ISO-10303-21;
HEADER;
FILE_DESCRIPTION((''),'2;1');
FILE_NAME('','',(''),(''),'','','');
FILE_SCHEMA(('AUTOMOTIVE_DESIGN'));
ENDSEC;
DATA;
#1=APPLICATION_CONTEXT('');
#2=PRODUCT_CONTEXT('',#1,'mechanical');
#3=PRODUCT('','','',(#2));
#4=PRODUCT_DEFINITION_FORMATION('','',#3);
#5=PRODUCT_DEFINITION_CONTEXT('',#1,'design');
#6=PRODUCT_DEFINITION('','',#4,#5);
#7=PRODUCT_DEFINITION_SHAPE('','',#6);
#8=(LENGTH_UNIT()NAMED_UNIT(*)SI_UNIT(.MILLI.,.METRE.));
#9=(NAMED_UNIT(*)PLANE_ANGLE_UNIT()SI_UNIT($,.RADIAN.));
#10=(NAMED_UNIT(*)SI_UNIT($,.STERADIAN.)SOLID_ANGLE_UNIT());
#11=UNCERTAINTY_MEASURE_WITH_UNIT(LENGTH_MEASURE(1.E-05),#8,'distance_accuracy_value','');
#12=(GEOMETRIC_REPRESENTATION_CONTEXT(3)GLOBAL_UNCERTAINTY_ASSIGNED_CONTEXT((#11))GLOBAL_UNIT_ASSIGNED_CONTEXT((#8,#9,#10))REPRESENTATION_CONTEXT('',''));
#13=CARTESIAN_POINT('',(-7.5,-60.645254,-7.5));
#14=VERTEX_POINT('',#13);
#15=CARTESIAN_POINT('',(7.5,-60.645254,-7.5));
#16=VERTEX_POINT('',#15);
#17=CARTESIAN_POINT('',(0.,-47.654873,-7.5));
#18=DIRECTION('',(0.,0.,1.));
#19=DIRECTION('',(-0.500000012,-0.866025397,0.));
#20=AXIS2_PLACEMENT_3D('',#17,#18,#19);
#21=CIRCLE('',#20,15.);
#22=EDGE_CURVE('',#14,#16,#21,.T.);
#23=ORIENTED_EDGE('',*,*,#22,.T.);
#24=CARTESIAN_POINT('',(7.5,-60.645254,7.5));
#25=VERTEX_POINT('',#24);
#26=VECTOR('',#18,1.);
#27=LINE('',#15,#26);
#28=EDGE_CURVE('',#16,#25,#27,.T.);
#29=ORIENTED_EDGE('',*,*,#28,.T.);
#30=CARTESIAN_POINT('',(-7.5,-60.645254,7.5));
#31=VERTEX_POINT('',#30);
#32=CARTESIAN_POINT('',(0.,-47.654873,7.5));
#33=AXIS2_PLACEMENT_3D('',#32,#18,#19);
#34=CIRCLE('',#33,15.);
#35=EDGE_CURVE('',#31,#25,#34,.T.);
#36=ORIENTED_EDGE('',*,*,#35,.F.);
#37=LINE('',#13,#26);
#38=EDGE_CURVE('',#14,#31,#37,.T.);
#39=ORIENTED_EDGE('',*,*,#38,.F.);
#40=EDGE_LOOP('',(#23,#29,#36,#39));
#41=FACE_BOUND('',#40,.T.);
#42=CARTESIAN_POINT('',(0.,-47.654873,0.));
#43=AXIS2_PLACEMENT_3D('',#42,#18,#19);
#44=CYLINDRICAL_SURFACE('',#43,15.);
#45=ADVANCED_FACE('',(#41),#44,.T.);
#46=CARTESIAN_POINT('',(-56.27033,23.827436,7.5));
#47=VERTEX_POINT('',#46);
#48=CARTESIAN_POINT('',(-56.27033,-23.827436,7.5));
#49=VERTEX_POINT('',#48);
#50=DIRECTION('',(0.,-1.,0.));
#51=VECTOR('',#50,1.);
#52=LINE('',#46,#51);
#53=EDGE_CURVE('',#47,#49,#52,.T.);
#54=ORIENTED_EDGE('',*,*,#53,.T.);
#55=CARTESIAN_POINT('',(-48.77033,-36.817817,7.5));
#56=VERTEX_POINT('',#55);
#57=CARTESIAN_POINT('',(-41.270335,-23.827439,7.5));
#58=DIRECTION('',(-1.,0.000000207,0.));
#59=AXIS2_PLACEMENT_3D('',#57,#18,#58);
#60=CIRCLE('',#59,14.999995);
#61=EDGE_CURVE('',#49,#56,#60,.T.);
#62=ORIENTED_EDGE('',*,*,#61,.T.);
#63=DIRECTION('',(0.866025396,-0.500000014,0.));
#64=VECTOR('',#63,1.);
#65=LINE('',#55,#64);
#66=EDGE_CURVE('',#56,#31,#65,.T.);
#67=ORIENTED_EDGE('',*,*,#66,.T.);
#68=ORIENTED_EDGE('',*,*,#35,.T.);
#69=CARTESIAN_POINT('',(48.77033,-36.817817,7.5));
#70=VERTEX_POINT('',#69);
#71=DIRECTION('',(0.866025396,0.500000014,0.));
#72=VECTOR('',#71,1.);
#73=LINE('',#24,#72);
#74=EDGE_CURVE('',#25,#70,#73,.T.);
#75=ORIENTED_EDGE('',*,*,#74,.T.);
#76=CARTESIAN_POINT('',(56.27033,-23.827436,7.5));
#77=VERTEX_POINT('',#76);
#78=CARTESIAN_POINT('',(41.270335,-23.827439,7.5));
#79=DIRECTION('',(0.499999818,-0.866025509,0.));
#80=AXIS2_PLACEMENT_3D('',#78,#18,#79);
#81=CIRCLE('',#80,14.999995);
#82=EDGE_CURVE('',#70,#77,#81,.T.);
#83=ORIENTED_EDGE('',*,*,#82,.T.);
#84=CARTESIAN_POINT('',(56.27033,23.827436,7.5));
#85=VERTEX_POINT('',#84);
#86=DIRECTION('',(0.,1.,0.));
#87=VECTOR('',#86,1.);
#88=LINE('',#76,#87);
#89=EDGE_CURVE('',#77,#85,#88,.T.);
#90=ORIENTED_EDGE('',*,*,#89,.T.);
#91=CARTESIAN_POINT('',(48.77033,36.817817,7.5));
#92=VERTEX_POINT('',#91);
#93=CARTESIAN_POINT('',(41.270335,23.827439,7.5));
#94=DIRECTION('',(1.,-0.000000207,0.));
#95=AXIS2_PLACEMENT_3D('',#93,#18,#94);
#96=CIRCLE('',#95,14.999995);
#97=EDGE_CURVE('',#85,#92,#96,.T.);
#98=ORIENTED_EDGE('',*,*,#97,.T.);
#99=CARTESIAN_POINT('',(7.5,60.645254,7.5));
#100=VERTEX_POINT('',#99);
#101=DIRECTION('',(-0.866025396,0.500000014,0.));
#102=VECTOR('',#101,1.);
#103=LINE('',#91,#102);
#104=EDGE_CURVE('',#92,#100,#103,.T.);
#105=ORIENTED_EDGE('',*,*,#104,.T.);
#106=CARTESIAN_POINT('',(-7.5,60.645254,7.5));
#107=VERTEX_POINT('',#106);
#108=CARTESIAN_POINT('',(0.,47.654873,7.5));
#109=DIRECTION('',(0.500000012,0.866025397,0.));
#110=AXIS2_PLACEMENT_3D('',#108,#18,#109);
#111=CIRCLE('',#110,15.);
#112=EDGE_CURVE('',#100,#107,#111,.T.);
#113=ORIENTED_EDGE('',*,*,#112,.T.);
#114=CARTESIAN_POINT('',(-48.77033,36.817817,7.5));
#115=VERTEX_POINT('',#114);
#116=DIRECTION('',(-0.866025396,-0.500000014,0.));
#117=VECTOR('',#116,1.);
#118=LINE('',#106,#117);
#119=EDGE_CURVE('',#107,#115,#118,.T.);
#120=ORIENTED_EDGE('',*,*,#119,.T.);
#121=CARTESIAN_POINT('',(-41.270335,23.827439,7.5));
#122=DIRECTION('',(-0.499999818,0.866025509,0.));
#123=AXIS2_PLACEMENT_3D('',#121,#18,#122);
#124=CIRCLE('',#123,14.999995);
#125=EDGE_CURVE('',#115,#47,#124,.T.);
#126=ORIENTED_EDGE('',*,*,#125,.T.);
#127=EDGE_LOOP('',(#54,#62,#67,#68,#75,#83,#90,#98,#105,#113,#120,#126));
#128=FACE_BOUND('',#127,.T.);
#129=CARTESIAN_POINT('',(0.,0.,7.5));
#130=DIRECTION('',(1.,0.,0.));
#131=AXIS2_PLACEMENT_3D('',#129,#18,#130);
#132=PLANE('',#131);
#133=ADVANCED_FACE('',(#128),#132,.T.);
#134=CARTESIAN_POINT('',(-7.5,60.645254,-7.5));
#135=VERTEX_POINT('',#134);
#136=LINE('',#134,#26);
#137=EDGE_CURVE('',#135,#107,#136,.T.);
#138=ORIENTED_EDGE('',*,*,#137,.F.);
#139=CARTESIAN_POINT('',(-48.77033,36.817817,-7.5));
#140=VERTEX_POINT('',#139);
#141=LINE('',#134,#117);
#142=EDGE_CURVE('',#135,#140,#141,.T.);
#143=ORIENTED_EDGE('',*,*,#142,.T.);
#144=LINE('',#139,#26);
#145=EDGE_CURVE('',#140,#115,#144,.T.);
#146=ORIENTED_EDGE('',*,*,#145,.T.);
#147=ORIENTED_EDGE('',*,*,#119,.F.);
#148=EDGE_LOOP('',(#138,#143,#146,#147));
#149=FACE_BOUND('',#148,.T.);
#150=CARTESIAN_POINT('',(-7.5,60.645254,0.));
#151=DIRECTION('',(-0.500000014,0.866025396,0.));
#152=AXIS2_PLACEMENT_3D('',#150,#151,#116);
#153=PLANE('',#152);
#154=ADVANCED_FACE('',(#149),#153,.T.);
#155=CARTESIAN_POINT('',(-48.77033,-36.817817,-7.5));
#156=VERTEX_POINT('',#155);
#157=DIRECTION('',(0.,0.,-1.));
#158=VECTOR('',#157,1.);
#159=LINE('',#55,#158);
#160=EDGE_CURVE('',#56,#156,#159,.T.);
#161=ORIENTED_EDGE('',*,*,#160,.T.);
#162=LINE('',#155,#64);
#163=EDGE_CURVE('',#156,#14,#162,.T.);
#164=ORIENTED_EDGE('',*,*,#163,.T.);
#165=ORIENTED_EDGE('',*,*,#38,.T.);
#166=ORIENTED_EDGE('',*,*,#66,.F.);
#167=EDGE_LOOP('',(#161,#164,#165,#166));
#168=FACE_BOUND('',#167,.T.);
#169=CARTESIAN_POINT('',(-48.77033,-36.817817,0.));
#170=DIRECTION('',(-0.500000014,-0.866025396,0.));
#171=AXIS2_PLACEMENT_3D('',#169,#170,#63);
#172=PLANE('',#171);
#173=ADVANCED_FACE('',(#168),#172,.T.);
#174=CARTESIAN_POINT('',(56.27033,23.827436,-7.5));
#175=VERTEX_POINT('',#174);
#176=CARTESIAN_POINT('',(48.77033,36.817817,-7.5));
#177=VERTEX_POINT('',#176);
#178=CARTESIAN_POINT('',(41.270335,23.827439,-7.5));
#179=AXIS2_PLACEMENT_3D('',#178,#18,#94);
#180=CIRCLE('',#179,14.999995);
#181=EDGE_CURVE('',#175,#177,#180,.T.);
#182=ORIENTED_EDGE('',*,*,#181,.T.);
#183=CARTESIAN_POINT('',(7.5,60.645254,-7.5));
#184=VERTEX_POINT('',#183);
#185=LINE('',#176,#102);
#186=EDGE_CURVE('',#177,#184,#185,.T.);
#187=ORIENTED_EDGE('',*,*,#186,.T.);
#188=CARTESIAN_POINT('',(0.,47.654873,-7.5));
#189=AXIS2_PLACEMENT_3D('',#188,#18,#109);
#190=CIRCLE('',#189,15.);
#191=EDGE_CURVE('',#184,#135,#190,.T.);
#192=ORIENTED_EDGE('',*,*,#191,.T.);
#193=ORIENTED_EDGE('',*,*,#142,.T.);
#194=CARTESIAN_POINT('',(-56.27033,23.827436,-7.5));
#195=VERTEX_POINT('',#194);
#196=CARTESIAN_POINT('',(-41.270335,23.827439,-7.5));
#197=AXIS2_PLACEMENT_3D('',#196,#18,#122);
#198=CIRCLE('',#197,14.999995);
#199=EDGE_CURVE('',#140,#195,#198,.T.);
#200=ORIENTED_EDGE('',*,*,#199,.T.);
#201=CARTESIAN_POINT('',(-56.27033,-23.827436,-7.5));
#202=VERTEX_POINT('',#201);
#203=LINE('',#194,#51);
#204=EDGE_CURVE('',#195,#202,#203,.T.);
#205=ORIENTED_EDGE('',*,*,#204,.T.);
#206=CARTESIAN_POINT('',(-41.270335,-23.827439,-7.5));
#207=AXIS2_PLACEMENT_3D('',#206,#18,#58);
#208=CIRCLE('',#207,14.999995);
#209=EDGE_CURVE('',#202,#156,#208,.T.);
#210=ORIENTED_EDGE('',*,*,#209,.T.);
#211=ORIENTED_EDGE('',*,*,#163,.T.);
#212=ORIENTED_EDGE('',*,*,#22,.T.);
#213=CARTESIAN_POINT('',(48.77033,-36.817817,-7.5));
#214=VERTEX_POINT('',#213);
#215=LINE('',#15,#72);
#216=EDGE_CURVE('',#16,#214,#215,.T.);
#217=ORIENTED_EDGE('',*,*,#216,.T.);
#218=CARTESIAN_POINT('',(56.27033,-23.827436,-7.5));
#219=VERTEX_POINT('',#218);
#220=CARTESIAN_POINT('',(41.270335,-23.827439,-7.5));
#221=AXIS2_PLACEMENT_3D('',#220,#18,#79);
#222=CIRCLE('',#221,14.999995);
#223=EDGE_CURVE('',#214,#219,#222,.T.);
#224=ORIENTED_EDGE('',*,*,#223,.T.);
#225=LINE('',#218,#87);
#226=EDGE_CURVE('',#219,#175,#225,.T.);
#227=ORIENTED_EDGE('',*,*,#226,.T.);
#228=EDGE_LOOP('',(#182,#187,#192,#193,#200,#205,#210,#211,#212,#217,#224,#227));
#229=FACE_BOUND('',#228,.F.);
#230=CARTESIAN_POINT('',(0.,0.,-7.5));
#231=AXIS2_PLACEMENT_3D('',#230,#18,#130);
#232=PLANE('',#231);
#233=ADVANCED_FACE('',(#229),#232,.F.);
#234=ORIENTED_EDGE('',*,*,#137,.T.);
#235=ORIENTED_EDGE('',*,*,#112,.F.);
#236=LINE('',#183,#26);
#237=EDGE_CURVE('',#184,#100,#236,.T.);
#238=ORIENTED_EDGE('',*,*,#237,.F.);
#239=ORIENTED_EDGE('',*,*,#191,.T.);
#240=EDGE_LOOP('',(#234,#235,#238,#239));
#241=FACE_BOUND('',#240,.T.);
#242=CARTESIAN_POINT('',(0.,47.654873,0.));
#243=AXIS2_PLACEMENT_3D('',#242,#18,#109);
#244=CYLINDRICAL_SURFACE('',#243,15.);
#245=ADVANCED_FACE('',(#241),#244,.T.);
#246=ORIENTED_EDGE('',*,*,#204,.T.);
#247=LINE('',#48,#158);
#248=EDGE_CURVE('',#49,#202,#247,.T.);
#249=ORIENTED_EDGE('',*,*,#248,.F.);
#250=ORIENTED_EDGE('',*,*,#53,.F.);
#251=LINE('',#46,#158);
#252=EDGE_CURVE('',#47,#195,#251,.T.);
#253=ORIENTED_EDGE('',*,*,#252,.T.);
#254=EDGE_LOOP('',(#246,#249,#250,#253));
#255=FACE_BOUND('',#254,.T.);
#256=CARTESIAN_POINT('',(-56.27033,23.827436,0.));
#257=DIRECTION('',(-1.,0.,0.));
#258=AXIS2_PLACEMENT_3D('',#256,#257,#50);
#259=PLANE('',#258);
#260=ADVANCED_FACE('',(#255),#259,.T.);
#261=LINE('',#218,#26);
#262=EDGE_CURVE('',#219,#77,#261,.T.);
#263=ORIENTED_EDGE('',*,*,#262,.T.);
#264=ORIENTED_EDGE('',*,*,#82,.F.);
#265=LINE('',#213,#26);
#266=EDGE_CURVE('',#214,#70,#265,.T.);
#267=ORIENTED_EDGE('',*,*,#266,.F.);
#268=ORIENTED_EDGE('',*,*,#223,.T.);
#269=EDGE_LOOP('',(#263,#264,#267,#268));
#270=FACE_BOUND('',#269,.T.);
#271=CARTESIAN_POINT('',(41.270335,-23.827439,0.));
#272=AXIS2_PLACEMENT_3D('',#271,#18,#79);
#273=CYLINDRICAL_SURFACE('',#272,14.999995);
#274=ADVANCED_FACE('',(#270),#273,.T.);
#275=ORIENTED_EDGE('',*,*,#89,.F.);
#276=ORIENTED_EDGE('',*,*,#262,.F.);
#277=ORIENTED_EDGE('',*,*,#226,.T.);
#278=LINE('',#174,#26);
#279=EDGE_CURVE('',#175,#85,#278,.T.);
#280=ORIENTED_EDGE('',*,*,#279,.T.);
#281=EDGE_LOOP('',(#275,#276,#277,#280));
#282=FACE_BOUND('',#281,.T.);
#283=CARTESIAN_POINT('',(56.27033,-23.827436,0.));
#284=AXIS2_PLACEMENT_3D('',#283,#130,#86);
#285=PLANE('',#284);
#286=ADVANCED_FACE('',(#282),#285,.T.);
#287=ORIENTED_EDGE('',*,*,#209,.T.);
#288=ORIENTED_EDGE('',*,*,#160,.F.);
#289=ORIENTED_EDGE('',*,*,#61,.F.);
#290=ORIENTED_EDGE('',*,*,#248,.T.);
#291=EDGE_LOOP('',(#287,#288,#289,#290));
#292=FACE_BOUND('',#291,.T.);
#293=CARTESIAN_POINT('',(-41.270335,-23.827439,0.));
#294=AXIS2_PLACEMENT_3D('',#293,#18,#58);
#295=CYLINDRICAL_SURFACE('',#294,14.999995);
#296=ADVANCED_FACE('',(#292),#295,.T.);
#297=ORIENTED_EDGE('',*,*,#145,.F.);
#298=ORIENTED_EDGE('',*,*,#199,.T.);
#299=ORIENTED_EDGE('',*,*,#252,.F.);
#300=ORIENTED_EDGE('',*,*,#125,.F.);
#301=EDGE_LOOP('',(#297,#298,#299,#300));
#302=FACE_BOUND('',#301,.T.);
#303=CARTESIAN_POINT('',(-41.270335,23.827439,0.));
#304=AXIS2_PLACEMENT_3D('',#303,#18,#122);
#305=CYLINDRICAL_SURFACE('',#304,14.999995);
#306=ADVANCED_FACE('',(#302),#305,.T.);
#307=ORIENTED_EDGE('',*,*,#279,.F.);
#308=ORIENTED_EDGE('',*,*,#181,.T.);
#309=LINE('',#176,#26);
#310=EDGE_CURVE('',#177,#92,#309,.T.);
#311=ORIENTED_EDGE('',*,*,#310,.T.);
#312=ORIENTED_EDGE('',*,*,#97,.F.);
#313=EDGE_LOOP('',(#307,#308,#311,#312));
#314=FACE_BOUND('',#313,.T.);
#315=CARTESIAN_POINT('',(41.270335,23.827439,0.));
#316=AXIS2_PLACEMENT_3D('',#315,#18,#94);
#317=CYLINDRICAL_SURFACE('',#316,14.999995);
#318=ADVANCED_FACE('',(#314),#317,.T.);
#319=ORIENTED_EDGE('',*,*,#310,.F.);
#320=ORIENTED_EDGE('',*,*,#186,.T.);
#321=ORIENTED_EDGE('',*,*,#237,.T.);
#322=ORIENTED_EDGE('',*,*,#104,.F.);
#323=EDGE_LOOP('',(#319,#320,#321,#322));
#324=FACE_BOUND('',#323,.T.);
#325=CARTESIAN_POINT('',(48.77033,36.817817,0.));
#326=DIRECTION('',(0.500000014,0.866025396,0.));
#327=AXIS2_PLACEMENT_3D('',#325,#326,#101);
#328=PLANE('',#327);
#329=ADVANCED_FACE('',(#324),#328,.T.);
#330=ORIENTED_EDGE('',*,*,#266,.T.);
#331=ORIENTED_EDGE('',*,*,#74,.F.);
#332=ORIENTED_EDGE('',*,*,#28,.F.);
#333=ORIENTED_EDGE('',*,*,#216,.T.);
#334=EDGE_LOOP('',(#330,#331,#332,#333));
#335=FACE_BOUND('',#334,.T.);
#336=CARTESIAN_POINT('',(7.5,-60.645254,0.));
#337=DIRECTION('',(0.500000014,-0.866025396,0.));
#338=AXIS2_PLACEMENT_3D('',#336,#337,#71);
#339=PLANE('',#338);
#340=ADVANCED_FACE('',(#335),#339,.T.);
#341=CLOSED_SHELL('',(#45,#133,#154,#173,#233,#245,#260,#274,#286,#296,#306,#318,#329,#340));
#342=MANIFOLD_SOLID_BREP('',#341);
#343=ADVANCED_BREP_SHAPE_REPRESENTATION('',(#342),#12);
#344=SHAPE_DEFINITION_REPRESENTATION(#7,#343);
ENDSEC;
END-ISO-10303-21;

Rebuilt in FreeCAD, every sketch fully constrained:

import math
import FreeCAD as App
import Part
import Sketcher

V = App.Vector
Q = App.Units.Quantity

doc = App.newDocument("Part")
params = doc.addObject("Spreadsheet::Sheet", "Params")
for row, (alias, value) in enumerate([
    ("sketch1_radius", "15 mm"),
    ("pad1_length", "15 mm"),
], start=1):
    params.set(f"A{row}", alias)
    params.set(f"B{row}", "=" + value)
    params.setAlias(f"B{row}", alias)

body = doc.addObject("PartDesign::Body", "Body")

# Sketch on XY plane
sketch1 = body.newObject("Sketcher::SketchObject", "Sketch")
sketch1.AttachmentSupport = (doc.getObject("XY_Plane"), [""])
sketch1.MapMode = "FlatFace"
sketch1.addGeometry([
    Part.LineSegment(V(-48.77033, -36.817817, 0), V(-7.5, -60.645254, 0)),  # 0
    Part.ArcOfCircle(Part.Circle(V(0, -47.654873, 0), V(0, 0, 1), 15), math.radians(-120.000001), math.radians(-59.999999)),  # 1
    Part.LineSegment(V(7.5, -60.645254, 0), V(48.77033, -36.817817, 0)),  # 2
    Part.ArcOfCircle(Part.Circle(V(41.270335, -23.827439, 0), V(0, 0, 1), 14.999995), math.radians(-60.000012), math.radians(0.000012)),  # 3
    Part.LineSegment(V(56.27033, -23.827436, 0), V(56.27033, 23.827436, 0)),  # 4
    Part.ArcOfCircle(Part.Circle(V(41.270335, 23.827439, 0), V(0, 0, 1), 14.999995), math.radians(-0.000012), math.radians(60.000012)),  # 5
    Part.LineSegment(V(48.77033, 36.817817, 0), V(7.5, 60.645254, 0)),  # 6
    Part.ArcOfCircle(Part.Circle(V(0, 47.654873, 0), V(0, 0, 1), 15), math.radians(59.999999), math.radians(120.000001)),  # 7
    Part.LineSegment(V(-7.5, 60.645254, 0), V(-48.77033, 36.817817, 0)),  # 8
    Part.ArcOfCircle(Part.Circle(V(-41.270335, 23.827439, 0), V(0, 0, 1), 14.999995), math.radians(119.999988), math.radians(180.000012)),  # 9
    Part.LineSegment(V(-56.27033, 23.827436, 0), V(-56.27033, -23.827436, 0)),  # 10
    Part.ArcOfCircle(Part.Circle(V(-41.270335, -23.827439, 0), V(0, 0, 1), 14.999995), math.radians(179.999988), math.radians(240.000012)),  # 11
], False)
sketch1.addConstraint([
    Sketcher.Constraint("Tangent", 0, 2, 1, 1),
    Sketcher.Constraint("Tangent", 1, 2, 2, 1),
    Sketcher.Constraint("Tangent", 2, 2, 3, 1),
    Sketcher.Constraint("Tangent", 3, 2, 4, 1),
    Sketcher.Constraint("Tangent", 4, 2, 5, 1),
    Sketcher.Constraint("Tangent", 5, 2, 6, 1),
    Sketcher.Constraint("Tangent", 6, 2, 7, 1),
    Sketcher.Constraint("Tangent", 7, 2, 8, 1),
    Sketcher.Constraint("Tangent", 8, 2, 9, 1),
    Sketcher.Constraint("Tangent", 9, 2, 10, 1),
    Sketcher.Constraint("Tangent", 10, 2, 11, 1),
    Sketcher.Constraint("Tangent", 11, 2, 0, 1),
    Sketcher.Constraint("Vertical", 4),
    Sketcher.Constraint("Vertical", 10),
    Sketcher.Constraint("Equal", 3, 5),
    Sketcher.Constraint("Equal", 1, 7),
    Sketcher.Constraint("Equal", 5, 9),
    Sketcher.Constraint("Equal", 9, 11),
    Sketcher.Constraint("Symmetric", 1, 3, 7, 3, -1, 1),
    Sketcher.Constraint("Symmetric", 3, 3, 9, 3, -1, 1),
    Sketcher.Constraint("Symmetric", 0, 2, 1, 2, -2),
    Sketcher.Constraint("Parallel", 0, 6),
    Sketcher.Constraint("Radius", 1, 15.0),
    Sketcher.Constraint("Angle", 0, Q("-30.000001 deg")),
    Sketcher.Constraint("DistanceX", 2, 2, 3, 2, 7.5),
    Sketcher.Constraint("DistanceY", 4, 1, 4, 2, 47.654872),
    Sketcher.Constraint("DistanceX", -1, 1, 2, 2, 48.77033),
])
sketch1.setExpression("Constraints[22]", "Params.sketch1_radius")
pad1 = body.newObject("PartDesign::Pad", "Pad")
pad1.Profile = sketch1
pad1.setExpression("Length", "Params.pad1_length")
pad1.Midplane = True

doc.recompute()
